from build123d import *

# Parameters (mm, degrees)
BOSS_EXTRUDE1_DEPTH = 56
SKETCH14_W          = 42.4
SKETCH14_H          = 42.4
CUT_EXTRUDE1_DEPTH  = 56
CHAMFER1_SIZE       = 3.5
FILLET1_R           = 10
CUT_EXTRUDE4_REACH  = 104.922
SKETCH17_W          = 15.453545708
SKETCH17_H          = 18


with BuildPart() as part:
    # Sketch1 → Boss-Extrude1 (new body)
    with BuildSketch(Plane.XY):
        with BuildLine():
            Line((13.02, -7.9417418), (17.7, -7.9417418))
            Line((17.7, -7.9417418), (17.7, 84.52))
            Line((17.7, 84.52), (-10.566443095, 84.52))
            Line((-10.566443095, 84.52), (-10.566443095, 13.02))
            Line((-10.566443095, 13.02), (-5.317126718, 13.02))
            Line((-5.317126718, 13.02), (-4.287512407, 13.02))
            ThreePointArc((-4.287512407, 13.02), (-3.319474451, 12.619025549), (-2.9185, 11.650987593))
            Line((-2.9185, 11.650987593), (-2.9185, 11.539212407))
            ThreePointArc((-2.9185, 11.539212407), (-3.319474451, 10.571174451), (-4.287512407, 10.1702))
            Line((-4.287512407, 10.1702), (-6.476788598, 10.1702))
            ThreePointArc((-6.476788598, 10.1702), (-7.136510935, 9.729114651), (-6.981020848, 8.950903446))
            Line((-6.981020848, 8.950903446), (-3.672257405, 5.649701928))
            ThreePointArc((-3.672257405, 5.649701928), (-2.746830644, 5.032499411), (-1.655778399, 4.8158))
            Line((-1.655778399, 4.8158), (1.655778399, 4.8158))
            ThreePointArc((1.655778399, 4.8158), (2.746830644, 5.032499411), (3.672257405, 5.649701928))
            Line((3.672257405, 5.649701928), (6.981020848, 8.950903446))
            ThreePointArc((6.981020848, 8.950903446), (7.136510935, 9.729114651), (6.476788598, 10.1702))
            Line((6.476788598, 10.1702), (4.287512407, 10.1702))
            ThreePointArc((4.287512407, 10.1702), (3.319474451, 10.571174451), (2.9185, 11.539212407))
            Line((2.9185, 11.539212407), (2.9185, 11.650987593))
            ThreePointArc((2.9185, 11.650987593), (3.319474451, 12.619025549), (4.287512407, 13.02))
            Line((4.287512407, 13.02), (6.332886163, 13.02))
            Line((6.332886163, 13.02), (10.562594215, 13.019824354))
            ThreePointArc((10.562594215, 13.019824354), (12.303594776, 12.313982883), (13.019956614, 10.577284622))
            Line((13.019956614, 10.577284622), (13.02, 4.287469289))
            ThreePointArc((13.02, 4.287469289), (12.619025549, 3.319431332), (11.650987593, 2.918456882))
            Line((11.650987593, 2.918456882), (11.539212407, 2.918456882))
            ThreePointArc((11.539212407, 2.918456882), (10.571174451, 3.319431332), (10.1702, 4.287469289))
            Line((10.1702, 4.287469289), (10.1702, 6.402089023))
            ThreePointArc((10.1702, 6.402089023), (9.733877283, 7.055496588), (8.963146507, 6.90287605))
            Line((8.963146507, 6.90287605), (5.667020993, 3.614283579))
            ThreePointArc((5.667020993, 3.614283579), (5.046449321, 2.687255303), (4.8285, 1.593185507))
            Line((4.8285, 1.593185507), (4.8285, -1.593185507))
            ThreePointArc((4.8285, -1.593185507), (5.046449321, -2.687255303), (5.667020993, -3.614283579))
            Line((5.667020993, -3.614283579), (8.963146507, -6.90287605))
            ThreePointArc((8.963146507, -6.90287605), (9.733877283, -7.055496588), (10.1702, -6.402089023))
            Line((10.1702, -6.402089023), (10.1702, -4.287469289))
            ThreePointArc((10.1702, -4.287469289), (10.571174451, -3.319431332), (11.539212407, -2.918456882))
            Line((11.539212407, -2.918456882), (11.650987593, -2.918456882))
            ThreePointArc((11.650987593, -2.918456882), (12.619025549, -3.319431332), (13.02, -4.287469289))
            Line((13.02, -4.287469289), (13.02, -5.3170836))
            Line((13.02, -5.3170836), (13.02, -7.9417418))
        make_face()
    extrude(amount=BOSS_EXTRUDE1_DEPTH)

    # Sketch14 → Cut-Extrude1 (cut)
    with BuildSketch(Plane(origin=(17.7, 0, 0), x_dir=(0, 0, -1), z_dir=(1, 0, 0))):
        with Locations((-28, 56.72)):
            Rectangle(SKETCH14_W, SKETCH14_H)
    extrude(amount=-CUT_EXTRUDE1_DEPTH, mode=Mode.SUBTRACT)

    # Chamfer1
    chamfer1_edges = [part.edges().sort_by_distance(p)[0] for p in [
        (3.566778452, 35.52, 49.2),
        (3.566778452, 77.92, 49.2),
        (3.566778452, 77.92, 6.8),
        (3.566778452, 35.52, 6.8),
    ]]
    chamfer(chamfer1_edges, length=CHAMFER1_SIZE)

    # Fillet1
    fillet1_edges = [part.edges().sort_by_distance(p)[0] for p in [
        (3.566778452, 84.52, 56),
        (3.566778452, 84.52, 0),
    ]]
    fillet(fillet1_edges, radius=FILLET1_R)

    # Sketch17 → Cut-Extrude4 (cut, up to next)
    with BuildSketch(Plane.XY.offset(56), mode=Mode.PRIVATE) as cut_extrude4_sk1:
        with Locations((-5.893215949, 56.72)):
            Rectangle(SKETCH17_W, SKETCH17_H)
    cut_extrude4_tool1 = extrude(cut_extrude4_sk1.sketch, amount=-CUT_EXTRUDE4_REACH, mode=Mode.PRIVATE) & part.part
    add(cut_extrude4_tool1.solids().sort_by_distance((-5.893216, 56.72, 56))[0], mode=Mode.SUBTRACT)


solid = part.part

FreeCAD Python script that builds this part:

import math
import FreeCAD as App
import Part
import Sketcher
Q = App.Units.Quantity


def edges_at(feature, points):
    """Names of the edges that pass closest to the given points."""
    edges = feature.Shape.Edges
    near = lambda p: min(range(len(edges)), key=lambda i: edges[i].distToShape(Part.Vertex(*p))[0])
    return sorted({f"Edge{near(p) + 1}" for p in points})

doc = App.newDocument("Part")
body = doc.addObject("PartDesign::Body", "Body")

# Sketch on XY plane
sketch1 = body.newObject("Sketcher::SketchObject", "Sketch")
sketch1.AttachmentSupport = (doc.getObject("XY_Plane"), [""])
sketch1.MapMode = "FlatFace"
sketch1.addGeometry([
    Part.LineSegment(App.Vector(13.02, -7.94, 0), App.Vector(17.7, -7.94, 0)),  # 0
    Part.LineSegment(App.Vector(17.7, -7.94, 0), App.Vector(17.7, 84.52, 0)),  # 1
    Part.LineSegment(App.Vector(17.7, 84.52, 0), App.Vector(-10.57, 84.52, 0)),  # 2
    Part.LineSegment(App.Vector(-10.57, 84.52, 0), App.Vector(-10.57, 13.02, 0)),  # 3
    Part.LineSegment(App.Vector(-10.57, 13.02, 0), App.Vector(-4.29, 13.02, 0)),  # 4
    Part.ArcOfCircle(Part.Circle(App.Vector(-4.29, 11.65, 0), App.Vector(0, 0, 1), 1.37), math.radians(0), math.radians(90)),  # 5
    Part.LineSegment(App.Vector(-2.92, 11.65, 0), App.Vector(-2.92, 11.54, 0)),  # 6
    Part.ArcOfCircle(Part.Circle(App.Vector(-4.29, 11.54, 0), App.Vector(0, 0, 1), 1.37), math.radians(-90), math.radians(0)),  # 7
    Part.LineSegment(App.Vector(-4.29, 10.17, 0), App.Vector(-6.48, 10.17, 0)),  # 8
    Part.ArcOfCircle(Part.Circle(App.Vector(-6.48, 9.46, 0), App.Vector(0, 0, 1), 0.71), math.radians(90), math.radians(225)),  # 9
    Part.LineSegment(App.Vector(-6.98, 8.95, 0), App.Vector(-3.67, 5.65, 0)),  # 10
    Part.ArcOfCircle(Part.Circle(App.Vector(-1.66, 7.67, 0), App.Vector(0, 0, 1), 2.85), math.radians(-135), math.radians(-90)),  # 11
    Part.LineSegment(App.Vector(-1.66, 4.82, 0), App.Vector(1.66, 4.82, 0)),  # 12
    Part.ArcOfCircle(Part.Circle(App.Vector(1.66, 7.67, 0), App.Vector(0, 0, 1), 2.85), math.radians(-90), math.radians(-45)),  # 13
    Part.LineSegment(App.Vector(3.67, 5.65, 0), App.Vector(6.98, 8.95, 0)),  # 14
    Part.ArcOfCircle(Part.Circle(App.Vector(6.48, 9.46, 0), App.Vector(0, 0, 1), 0.71), math.radians(-45), math.radians(90)),  # 15
    Part.LineSegment(App.Vector(6.48, 10.17, 0), App.Vector(4.29, 10.17, 0)),  # 16
    Part.ArcOfCircle(Part.Circle(App.Vector(4.29, 11.54, 0), App.Vector(0, 0, 1), 1.37), math.radians(-180), math.radians(-90)),  # 17
    Part.LineSegment(App.Vector(2.92, 11.54, 0), App.Vector(2.92, 11.65, 0)),  # 18
    Part.ArcOfCircle(Part.Circle(App.Vector(4.29, 11.65, 0), App.Vector(0, 0, 1), 1.37), math.radians(90), math.radians(180)),  # 19
    Part.LineSegment(App.Vector(4.29, 13.02, 0), App.Vector(6.33, 13.02, 0)),  # 20
    Part.LineSegment(App.Vector(6.33, 13.02, 0), App.Vector(10.56, 13.02, 0)),  # 21
    Part.ArcOfCircle(Part.Circle(App.Vector(10.59, 10.59, 0), App.Vector(0, 0, 1), 2.43), math.radians(0), math.radians(91)),  # 22
    Part.LineSegment(App.Vector(13.02, 10.58, 0), App.Vector(13.02, 4.29, 0)),  # 23
    Part.ArcOfCircle(Part.Circle(App.Vector(11.65, 4.29, 0), App.Vector(0, 0, 1), 1.37), math.radians(-90), math.radians(0)),  # 24
    Part.LineSegment(App.Vector(11.65, 2.92, 0), App.Vector(11.54, 2.92, 0)),  # 25
    Part.ArcOfCircle(Part.Circle(App.Vector(11.54, 4.29, 0), App.Vector(0, 0, 1), 1.37), math.radians(180), math.radians(270)),  # 26
    Part.LineSegment(App.Vector(10.17, 4.29, 0), App.Vector(10.17, 6.4, 0)),  # 27
    Part.ArcOfCircle(Part.Circle(App.Vector(9.46, 6.4, 0), App.Vector(0, 0, 1), 0.71), math.radians(0), math.radians(135)),  # 28
    Part.LineSegment(App.Vector(8.96, 6.9, 0), App.Vector(5.67, 3.61, 0)),  # 29
    Part.ArcOfCircle(Part.Circle(App.Vector(7.68, 1.59, 0), App.Vector(0, 0, 1), 2.85), math.radians(135), math.radians(180)),  # 30
    Part.LineSegment(App.Vector(4.83, 1.59, 0), App.Vector(4.83, -1.59, 0)),  # 31
    Part.ArcOfCircle(Part.Circle(App.Vector(7.68, -1.59, 0), App.Vector(0, 0, 1), 2.85), math.radians(180), math.radians(225)),  # 32
    Part.LineSegment(App.Vector(5.67, -3.61, 0), App.Vector(8.96, -6.9, 0)),  # 33
    Part.ArcOfCircle(Part.Circle(App.Vector(9.46, -6.4, 0), App.Vector(0, 0, 1), 0.71), math.radians(-135), math.radians(0)),  # 34
    Part.LineSegment(App.Vector(10.17, -6.4, 0), App.Vector(10.17, -4.29, 0)),  # 35
    Part.ArcOfCircle(Part.Circle(App.Vector(11.54, -4.29, 0), App.Vector(0, 0, 1), 1.37), math.radians(90), math.radians(180)),  # 36
    Part.LineSegment(App.Vector(11.54, -2.92, 0), App.Vector(11.65, -2.92, 0)),  # 37
    Part.ArcOfCircle(Part.Circle(App.Vector(11.65, -4.29, 0), App.Vector(0, 0, 1), 1.37), math.radians(0), math.radians(90)),  # 38
    Part.LineSegment(App.Vector(13.02, -4.29, 0), App.Vector(13.02, -7.94, 0)),  # 39
], False)
sketch1.addConstraint([
    Sketcher.Constraint("Coincident", 0, 2, 1, 1),
    Sketcher.Constraint("Coincident", 1, 2, 2, 1),
    Sketcher.Constraint("Coincident", 2, 2, 3, 1),
    Sketcher.Constraint("Coincident", 3, 2, 4, 1),
    Sketcher.Constraint("Tangent", 4, 2, 5, 2),
    Sketcher.Constraint("Tangent", 5, 1, 6, 1),
    Sketcher.Constraint("Tangent", 6, 2, 7, 2),
    Sketcher.Constraint("Tangent", 7, 1, 8, 1),
    Sketcher.Constraint("Tangent", 8, 2, 9, 1),
    Sketcher.Constraint("Tangent", 9, 2, 10, 1),
    Sketcher.Constraint("Tangent", 10, 2, 11, 1),
    Sketcher.Constraint("Tangent", 11, 2, 12, 1),
    Sketcher.Constraint("Tangent", 12, 2, 13, 1),
    Sketcher.Constraint("Tangent", 13, 2, 14, 1),
    Sketcher.Constraint("Tangent", 14, 2, 15, 1),
    Sketcher.Constraint("Tangent", 15, 2, 16, 1),
    Sketcher.Constraint("Tangent", 16, 2, 17, 2),
    Sketcher.Constraint("Tangent", 17, 1, 18, 1),
    Sketcher.Constraint("Tangent", 18, 2, 19, 2),
    Sketcher.Constraint("Tangent", 19, 1, 20, 1),
    Sketcher.Constraint("Coincident", 20, 2, 21, 1),
    Sketcher.Constraint("Coincident", 21, 2, 22, 2),
    Sketcher.Constraint("Coincident", 22, 1, 23, 1),
    Sketcher.Constraint("Coincident", 23, 2, 24, 2),
    Sketcher.Constraint("Tangent", 24, 1, 25, 1),
    Sketcher.Constraint("Tangent", 25, 2, 26, 2),
    Sketcher.Constraint("Tangent", 26, 1, 27, 1),
    Sketcher.Constraint("Tangent", 27, 2, 28, 1),
    Sketcher.Constraint("Tangent", 28, 2, 29, 1),
    Sketcher.Constraint("Tangent", 29, 2, 30, 1),
    Sketcher.Constraint("Tangent", 30, 2, 31, 1),
    Sketcher.Constraint("Tangent", 31, 2, 32, 1),
    Sketcher.Constraint("Tangent", 32, 2, 33, 1),
    Sketcher.Constraint("Tangent", 33, 2, 34, 1),
    Sketcher.Constraint("Tangent", 34, 2, 35, 1),
    Sketcher.Constraint("Tangent", 35, 2, 36, 2),
    Sketcher.Constraint("Tangent", 36, 1, 37, 1),
    Sketcher.Constraint("Tangent", 37, 2, 38, 2),
    Sketcher.Constraint("Tangent", 38, 1, 39, 1),
    Sketcher.Constraint("Coincident", 39, 2, 0, 1),
    Sketcher.Constraint("Horizontal", 0),
    Sketcher.Constraint("Vertical", 1),
    Sketcher.Constraint("Horizontal", 2),
    Sketcher.Constraint("Vertical", 3),
    Sketcher.Constraint("Horizontal", 4),
    Sketcher.Constraint("Vertical", 6),
    Sketcher.Constraint("Horizontal", 8),
    Sketcher.Constraint("Horizontal", 12),
    Sketcher.Constraint("Horizontal", 16),
    Sketcher.Constraint("Vertical", 18),
    Sketcher.Constraint("Horizontal", 20),
    Sketcher.Constraint("Horizontal", 25),
    Sketcher.Constraint("Vertical", 27),
    Sketcher.Constraint("Vertical", 31),
    Sketcher.Constraint("Vertical", 35),
    Sketcher.Constraint("Horizontal", 37),
    Sketcher.Constraint("Vertical", 39),
    Sketcher.Constraint("Equal", 5, 7),
    Sketcher.Constraint("Equal", 11, 13),
    Sketcher.Constraint("Equal", 9, 15),
    Sketcher.Constraint("Equal", 7, 17),
    Sketcher.Constraint("Equal", 17, 19),
    Sketcher.Constraint("Equal", 19, 24),
    Sketcher.Constraint("Equal", 24, 26),
    Sketcher.Constraint("Equal", 13, 30),
    Sketcher.Constraint("Equal", 30, 32),
    Sketcher.Constraint("Equal", 28, 34),
    Sketcher.Constraint("Equal", 26, 36),
    Sketcher.Constraint("Equal", 36, 38),
    Sketcher.Constraint("Symmetric", 9, 3, 15, 3, -2),
    Sketcher.Constraint("Symmetric", 5, 3, 19, 3, -2),
    Sketcher.Constraint("Symmetric", 28, 3, 34, 3, -1),
    Sketcher.Constraint("Symmetric", 24, 3, 38, 3, -1),
    Sketcher.Constraint("Parallel", 14, 29),
    Sketcher.Constraint("Parallel", 10, 33),
    Sketcher.Constraint("Horizontal", 10, 2, 13, 2),
    Sketcher.Constraint("Horizontal", 26, 3, 23, 2),
    Sketcher.Constraint("Equal", 37, 6),
    Sketcher.Constraint("DistanceY", 3, 2, 3, 1, Q("71.5 mm")),
    Sketcher.Constraint("Radius", 11, Q("2.855 mm")),
    Sketcher.Constraint("DistanceX", 0, 1, 0, 2, Q("4.68 mm")),
    Sketcher.Constraint("DistanceX", -1, 1, 0, 2, Q("17.7 mm")),
    Sketcher.Constraint("Radius", 22, Q("2.4282 mm")),
    Sketcher.Constraint("DistanceY", -1, 1, 1, 2, Q("84.52 mm")),
    Sketcher.Constraint("Radius", 9, Q("0.713909 mm")),
    Sketcher.Constraint("Radius", 28, Q("0.707411 mm")),
    Sketcher.Constraint("Radius", 5, Q("1.369012 mm")),
    Sketcher.Constraint("DistanceY", 13, 3, 22, 3, Q("2.921 mm")),
    Sketcher.Constraint("DistanceX", 15, 3, 28, 3, Q("2.986 mm")),
    Sketcher.Constraint("Distance", 29, Q("4.656102 mm")),
    Sketcher.Constraint("DistanceX", 4, 1, 4, 2, Q("6.278931 mm")),
    Sketcher.Constraint("DistanceY", 1, 1, 1, 2, Q("92.461742 mm")),
    Sketcher.Constraint("DistanceY", 27, 1, 27, 2, Q("2.11462 mm")),
    Sketcher.Constraint("DistanceY", 31, 2, 31, 1, Q("3.186371 mm")),
    Sketcher.Constraint("DistanceY", -1, 1, 11, 3, Q("7.6708 mm")),
    Sketcher.Constraint("DistanceX", -1, 1, 22, 3, Q("10.5918 mm")),
    Sketcher.Constraint("DistanceX", -1, 1, 30, 3, Q("7.6835 mm")),
    Sketcher.Constraint("DistanceX", 5, 1, -1, 1, Q("2.9185 mm")),
    Sketcher.Constraint("DistanceY", -1, 1, 7, 1, Q("10.1702 mm")),
    Sketcher.Constraint("Distance", 21, Q("4.229708 mm")),
    Sketcher.Constraint("DistanceX", 20, 1, 20, 2, Q("2.045374 mm")),
    Sketcher.Constraint("DistanceY", 22, 1, 21, 2, Q("2.44254 mm")),
])
pad1 = body.newObject("PartDesign::Pad", "Pad")
pad1.Profile = sketch1
pad1.Length = 56

# Sketch on YZ plane
sketch2 = body.newObject("Sketcher::SketchObject", "Sketch001")
sketch2.AttachmentSupport = (doc.getObject("YZ_Plane"), [""])
sketch2.MapMode = "FlatFace"
sketch2.AttachmentOffset = App.Placement(App.Vector(0, 0, 17.7), App.Rotation())
sketch2.addGeometry([
    Part.LineSegment(App.Vector(78, 49, 0), App.Vector(36, 49, 0)),
    Part.LineSegment(App.Vector(36, 49, 0), App.Vector(36, 7, 0)),
    Part.LineSegment(App.Vector(36, 7, 0), App.Vector(78, 7, 0)),
    Part.LineSegment(App.Vector(78, 7, 0), App.Vector(78, 49, 0)),
], False)
sketch2.addConstraint([
    Sketcher.Constraint("Coincident", 0, 2, 1, 1),
    Sketcher.Constraint("Coincident", 1, 2, 2, 1),
    Sketcher.Constraint("Coincident", 2, 2, 3, 1),
    Sketcher.Constraint("Coincident", 3, 2, 0, 1),
    Sketcher.Constraint("Horizontal", 0),
    Sketcher.Constraint("Vertical", 1),
    Sketcher.Constraint("Horizontal", 2),
    Sketcher.Constraint("Vertical", 3),
    Sketcher.Constraint("Equal", 2, 1),
    Sketcher.Constraint("DistanceX", 0, 2, 0, 1, Q("42.4 mm")),
    Sketcher.Constraint("DistanceY", -1, 1, 0, 2, Q("49.2 mm")),
    Sketcher.Constraint("DistanceX", -1, 1, 0, 2, Q("35.52 mm")),
])
pocket1 = body.newObject("PartDesign::Pocket", "Pocket")
pocket1.Profile = sketch2
pocket1.Length = 56
doc.recompute()

chamfer = body.newObject("PartDesign::Chamfer", "Chamfer")
chamfer.Base = (pocket1, edges_at(pocket1, [
    (3.567, 35.52, 49.2),
    (3.567, 77.92, 49.2),
    (3.567, 77.92, 6.8),
    (3.567, 35.52, 6.8),
]))
chamfer.Size = 3.5
doc.recompute()

fillet = body.newObject("PartDesign::Fillet", "Fillet")
fillet.Base = (chamfer, edges_at(chamfer, [(3.567, 84.52, 56), (3.567, 84.52, 0)]))
fillet.Radius = 10

# Sketch on XY plane
sketch3 = body.newObject("Sketcher::SketchObject", "Sketch002")
sketch3.AttachmentSupport = (doc.getObject("XY_Plane"), [""])
sketch3.MapMode = "FlatFace"
sketch3.AttachmentOffset = App.Placement(App.Vector(0, 0, 56), App.Rotation())
sketch3.addGeometry([
    Part.LineSegment(App.Vector(-14, 66, 0), App.Vector(-14, 48, 0)),
    Part.LineSegment(App.Vector(-14, 48, 0), App.Vector(2, 48, 0)),
    Part.LineSegment(App.Vector(2, 48, 0), App.Vector(2, 66, 0)),
    Part.LineSegment(App.Vector(2, 66, 0), App.Vector(-14, 66, 0)),
], False)
sketch3.addConstraint([
    Sketcher.Constraint("Coincident", 0, 2, 1, 1),
    Sketcher.Constraint("Coincident", 1, 2, 2, 1),
    Sketcher.Constraint("Coincident", 2, 2, 3, 1),
    Sketcher.Constraint("Coincident", 3, 2, 0, 1),
    Sketcher.Constraint("Vertical", 0),
    Sketcher.Constraint("Horizontal", 1),
    Sketcher.Constraint("Vertical", 2),
    Sketcher.Constraint("Horizontal", 3),
    Sketcher.Constraint("DistanceY", 0, 2, 0, 1, Q("18 mm")),
    Sketcher.Constraint("DistanceY", -1, 1, 0, 2, Q("47.72 mm")),
    Sketcher.Constraint("DistanceX", 1, 1, 1, 2, Q("15.453546 mm")),
    Sketcher.Constraint("DistanceX", 0, 2, -1, 1, Q("13.619989 mm")),
])
pocket2 = body.newObject("PartDesign::Pocket", "Pocket001")
pocket2.Profile = sketch3
pocket2.Type = "UpToFirst"

doc.recompute()
